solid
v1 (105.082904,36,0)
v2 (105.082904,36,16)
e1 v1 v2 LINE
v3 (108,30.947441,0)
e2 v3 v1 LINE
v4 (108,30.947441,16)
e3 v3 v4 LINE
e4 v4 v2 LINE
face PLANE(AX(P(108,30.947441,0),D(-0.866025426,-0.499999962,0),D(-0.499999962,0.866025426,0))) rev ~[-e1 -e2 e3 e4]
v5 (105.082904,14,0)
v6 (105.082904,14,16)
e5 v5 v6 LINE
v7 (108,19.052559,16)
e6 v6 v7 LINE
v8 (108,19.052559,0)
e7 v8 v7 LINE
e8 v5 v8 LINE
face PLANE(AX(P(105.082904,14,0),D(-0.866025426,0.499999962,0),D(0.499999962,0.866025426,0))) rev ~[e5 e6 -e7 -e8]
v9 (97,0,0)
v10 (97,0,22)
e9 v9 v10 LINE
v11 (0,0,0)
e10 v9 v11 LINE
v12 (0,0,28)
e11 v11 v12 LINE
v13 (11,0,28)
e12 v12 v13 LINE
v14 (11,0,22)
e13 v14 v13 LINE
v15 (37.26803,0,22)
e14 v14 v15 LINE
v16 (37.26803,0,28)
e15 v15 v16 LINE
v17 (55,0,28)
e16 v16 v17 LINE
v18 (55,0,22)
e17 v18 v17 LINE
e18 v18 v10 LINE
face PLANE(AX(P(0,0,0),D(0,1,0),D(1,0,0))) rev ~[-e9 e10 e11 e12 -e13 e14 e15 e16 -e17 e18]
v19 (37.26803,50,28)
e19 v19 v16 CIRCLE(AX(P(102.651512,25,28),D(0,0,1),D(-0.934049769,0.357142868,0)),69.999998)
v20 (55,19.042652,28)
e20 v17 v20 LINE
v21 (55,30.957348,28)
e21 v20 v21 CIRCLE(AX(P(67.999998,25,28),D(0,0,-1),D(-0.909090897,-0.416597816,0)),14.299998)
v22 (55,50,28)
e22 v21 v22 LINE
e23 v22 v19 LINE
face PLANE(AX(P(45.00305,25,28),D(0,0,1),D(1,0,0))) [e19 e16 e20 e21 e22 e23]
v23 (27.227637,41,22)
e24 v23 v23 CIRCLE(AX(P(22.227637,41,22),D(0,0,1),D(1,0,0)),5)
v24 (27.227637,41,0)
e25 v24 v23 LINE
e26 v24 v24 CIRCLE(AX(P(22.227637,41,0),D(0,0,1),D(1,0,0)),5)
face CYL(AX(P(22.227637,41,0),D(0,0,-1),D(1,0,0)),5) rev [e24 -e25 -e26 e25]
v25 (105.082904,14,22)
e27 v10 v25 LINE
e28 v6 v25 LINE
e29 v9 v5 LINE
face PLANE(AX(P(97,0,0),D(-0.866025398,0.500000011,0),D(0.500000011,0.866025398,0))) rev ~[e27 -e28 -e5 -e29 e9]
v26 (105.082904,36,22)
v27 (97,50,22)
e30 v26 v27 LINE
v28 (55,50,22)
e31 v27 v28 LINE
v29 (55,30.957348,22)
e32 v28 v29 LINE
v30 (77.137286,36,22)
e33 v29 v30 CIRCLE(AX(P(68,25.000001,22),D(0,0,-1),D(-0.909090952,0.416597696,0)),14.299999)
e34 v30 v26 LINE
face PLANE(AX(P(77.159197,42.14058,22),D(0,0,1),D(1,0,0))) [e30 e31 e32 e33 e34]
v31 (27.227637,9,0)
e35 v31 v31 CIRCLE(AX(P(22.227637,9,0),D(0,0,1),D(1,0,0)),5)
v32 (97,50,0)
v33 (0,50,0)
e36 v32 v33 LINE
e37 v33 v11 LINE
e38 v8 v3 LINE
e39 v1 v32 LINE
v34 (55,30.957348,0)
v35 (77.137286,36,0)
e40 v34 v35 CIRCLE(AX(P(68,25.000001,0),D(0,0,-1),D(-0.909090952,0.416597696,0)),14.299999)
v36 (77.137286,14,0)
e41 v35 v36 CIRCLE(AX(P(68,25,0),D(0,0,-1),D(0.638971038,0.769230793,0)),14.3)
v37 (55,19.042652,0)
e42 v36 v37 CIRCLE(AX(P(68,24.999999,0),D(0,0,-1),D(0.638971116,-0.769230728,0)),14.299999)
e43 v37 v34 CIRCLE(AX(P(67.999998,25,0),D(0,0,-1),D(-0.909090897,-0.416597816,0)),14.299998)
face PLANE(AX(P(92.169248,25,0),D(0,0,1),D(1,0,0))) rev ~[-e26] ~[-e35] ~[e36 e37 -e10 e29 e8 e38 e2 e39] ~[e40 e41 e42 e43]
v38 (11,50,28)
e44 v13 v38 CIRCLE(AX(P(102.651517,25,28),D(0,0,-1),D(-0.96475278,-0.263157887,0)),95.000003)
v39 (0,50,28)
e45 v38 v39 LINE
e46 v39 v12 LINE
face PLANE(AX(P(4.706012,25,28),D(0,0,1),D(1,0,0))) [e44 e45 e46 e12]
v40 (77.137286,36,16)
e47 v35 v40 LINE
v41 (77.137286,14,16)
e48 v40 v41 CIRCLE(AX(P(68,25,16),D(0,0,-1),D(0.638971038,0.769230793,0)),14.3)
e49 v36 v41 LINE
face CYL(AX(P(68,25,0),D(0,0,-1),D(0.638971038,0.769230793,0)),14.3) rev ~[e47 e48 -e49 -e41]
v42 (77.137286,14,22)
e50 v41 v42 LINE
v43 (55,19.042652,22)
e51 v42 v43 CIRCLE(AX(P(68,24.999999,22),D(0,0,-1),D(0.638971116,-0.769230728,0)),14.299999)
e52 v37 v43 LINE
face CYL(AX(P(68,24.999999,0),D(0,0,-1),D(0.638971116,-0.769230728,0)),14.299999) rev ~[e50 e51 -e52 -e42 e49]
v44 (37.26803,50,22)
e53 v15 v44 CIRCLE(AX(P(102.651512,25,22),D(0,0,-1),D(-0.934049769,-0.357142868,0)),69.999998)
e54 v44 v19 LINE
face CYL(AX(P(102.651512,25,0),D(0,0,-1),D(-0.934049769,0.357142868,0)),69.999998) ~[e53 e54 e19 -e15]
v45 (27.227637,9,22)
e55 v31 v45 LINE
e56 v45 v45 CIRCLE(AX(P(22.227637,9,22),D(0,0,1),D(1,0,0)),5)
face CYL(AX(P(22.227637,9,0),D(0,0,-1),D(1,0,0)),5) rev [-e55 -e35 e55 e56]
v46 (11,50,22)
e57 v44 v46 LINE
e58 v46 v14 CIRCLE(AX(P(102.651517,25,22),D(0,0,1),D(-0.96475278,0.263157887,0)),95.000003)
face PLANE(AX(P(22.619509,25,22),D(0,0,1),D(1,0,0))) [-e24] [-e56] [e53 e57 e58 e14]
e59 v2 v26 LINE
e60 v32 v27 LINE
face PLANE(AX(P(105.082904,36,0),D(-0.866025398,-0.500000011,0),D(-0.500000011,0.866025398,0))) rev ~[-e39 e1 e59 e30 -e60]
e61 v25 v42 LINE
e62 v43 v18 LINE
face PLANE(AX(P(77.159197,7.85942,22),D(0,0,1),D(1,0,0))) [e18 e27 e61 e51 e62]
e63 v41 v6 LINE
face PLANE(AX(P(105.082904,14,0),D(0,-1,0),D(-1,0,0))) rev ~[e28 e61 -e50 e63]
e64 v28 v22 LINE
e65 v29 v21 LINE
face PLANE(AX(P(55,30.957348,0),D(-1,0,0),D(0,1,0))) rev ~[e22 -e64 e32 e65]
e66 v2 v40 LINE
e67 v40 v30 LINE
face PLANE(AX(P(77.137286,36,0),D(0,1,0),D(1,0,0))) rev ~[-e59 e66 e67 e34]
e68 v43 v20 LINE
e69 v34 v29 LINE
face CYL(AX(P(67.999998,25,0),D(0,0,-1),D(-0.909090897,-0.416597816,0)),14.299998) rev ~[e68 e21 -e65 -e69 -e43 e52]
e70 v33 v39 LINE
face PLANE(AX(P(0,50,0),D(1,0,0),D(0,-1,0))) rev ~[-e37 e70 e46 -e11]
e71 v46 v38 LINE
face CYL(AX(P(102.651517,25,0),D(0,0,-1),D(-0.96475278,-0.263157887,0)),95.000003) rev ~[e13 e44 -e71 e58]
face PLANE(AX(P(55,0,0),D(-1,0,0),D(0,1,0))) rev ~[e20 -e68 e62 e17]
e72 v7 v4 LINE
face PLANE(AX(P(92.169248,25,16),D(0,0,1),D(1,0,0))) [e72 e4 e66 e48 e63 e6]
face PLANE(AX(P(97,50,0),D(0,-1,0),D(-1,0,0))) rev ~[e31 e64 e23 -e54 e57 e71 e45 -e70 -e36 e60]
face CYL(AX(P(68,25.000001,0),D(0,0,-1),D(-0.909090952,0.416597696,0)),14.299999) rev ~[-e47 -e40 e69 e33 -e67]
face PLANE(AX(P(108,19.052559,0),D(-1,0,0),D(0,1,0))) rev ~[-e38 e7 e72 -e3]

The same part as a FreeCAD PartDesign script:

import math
import FreeCAD as App
import Part
import Sketcher
from FreeCAD import Vector
Q = App.Units.Quantity

doc = App.newDocument("Part")
body = doc.addObject("PartDesign::Body", "Body")

sketch1 = doc.addObject("Sketcher::SketchObject", "Sketch")
body.addObject(sketch1)
sketch1.AttachmentSupport = (doc.XY_Plane, [""])
sketch1.MapMode = "FlatFace"
sketch1.addGeometry([
    Part.ArcOfCircle(Part.Circle(Vector(103, 25, 0), Vector(0, 0, 1), 95), math.radians(165), math.radians(195)),
    Part.LineSegment(Vector(11, 0, 0), Vector(37, 0, 0)),
    Part.ArcOfCircle(Part.Circle(Vector(103, 25, 0), Vector(0, 0, 1), 70), math.radians(159), math.radians(201)),
    Part.LineSegment(Vector(37, 50, 0), Vector(11, 50, 0)),
    Part.Circle(Vector(22, 9, 0), Vector(0, 0, 1), 5),
    Part.Circle(Vector(22, 41, 0), Vector(0, 0, 1), 5),
], False)
sketch1.addConstraint([
    Sketcher.Constraint("Coincident", 0, 2, 1, 1),
    Sketcher.Constraint("Coincident", 1, 2, 2, 2),
    Sketcher.Constraint("Coincident", 2, 1, 3, 1),
    Sketcher.Constraint("Coincident", 3, 2, 0, 1),
    Sketcher.Constraint("Horizontal", 1),
    Sketcher.Constraint("Horizontal", 3),
    Sketcher.Constraint("Coincident", 2, 3, 0, 3),
    Sketcher.Constraint("Equal", 4, 5),
    Sketcher.Constraint("PointOnObject", 0, 2, -1),
    Sketcher.Constraint("Vertical", 4, 3, 5, 3),
    Sketcher.Constraint("Vertical", 1, 2, 2, 1),
    Sketcher.Constraint("Diameter", 4, Q("10 mm")),
    Sketcher.Constraint("DistanceY", -1, 1, 0, 3, Q("25 mm")),
    Sketcher.Constraint("DistanceY", -1, 1, 4, 3, Q("9 mm")),
    Sketcher.Constraint("DistanceY", -1, 1, 5, 3, Q("41 mm")),
    Sketcher.Constraint("DistanceX", -1, 1, 0, 2, Q("11 mm")),
    Sketcher.Constraint("Radius", 0, Q("95.000003 mm")),
    Sketcher.Constraint("Radius", 2, Q("69.999998 mm")),
    Sketcher.Constraint("DistanceX", 4, 3, 0, 3, Q("80.42388 mm")),
])
pad1 = doc.addObject("PartDesign::Pad", "Pad")
body.addObject(pad1)
pad1.Profile = sketch1
pad1.Length = 22

sketch2 = doc.addObject("Sketcher::SketchObject", "Sketch001")
body.addObject(sketch2)
sketch2.AttachmentSupport = (doc.XY_Plane, [""])
sketch2.MapMode = "FlatFace"
sketch2.addGeometry([
    Part.LineSegment(Vector(0, 50, 0), Vector(0, 0, 0)),
    Part.LineSegment(Vector(0, 0, 0), Vector(11, 0, 0)),
    Part.ArcOfCircle(Part.Circle(Vector(103, 25, 0), Vector(0, 0, 1), 95), math.radians(165), math.radians(195)),
    Part.LineSegment(Vector(11, 50, 0), Vector(0, 50, 0)),
    Part.ArcOfCircle(Part.Circle(Vector(103, 25, 0), Vector(0, 0, 1), 70), math.radians(159), math.radians(201)),
    Part.LineSegment(Vector(37, 0, 0), Vector(55, 0, 0)),
    Part.LineSegment(Vector(55, 0, 0), Vector(55, 19, 0)),
    Part.ArcOfCircle(Part.Circle(Vector(68, 25, 0), Vector(0, 0, 1), 14), math.radians(155), math.radians(205)),
    Part.LineSegment(Vector(55, 31, 0), Vector(55, 50, 0)),
    Part.LineSegment(Vector(55, 50, 0), Vector(37, 50, 0)),
], False)
sketch2.addConstraint([
    Sketcher.Constraint("Coincident", 0, 2, 1, 1),
    Sketcher.Constraint("Coincident", 1, 2, 2, 2),
    Sketcher.Constraint("Coincident", 2, 1, 3, 1),
    Sketcher.Constraint("Coincident", 3, 2, 0, 1),
    Sketcher.Constraint("Coincident", 4, 2, 5, 1),
    Sketcher.Constraint("Coincident", 5, 2, 6, 1),
    Sketcher.Constraint("Coincident", 6, 2, 7, 2),
    Sketcher.Constraint("Coincident", 7, 1, 8, 1),
    Sketcher.Constraint("Coincident", 8, 2, 9, 1),
    Sketcher.Constraint("Coincident", 9, 2, 4, 1),
    Sketcher.Constraint("Vertical", 0),
    Sketcher.Constraint("Horizontal", 1),
    Sketcher.Constraint("Horizontal", 3),
    Sketcher.Constraint("Horizontal", 5),
    Sketcher.Constraint("Vertical", 6),
    Sketcher.Constraint("Vertical", 8),
    Sketcher.Constraint("Horizontal", 9),
    Sketcher.Constraint("Coincident", 0, 2, -1, 1),
    Sketcher.Constraint("Coincident", 4, 3, 2, 3),
    Sketcher.Constraint("PointOnObject", 4, 2, -1),
    Sketcher.Constraint("Horizontal", 4, 3, 7, 3),
    Sketcher.Constraint("Horizontal", 3, 2, 8, 2),
    Sketcher.Constraint("Vertical", 1, 2, 2, 1),
    Sketcher.Constraint("Vertical", 6, 2, 7, 1),
    Sketcher.Constraint("Radius", 7, Q("14.299998 mm")),
    Sketcher.Constraint("DistanceX", 1, 1, 1, 2, Q("11 mm")),
    Sketcher.Constraint("DistanceY", 0, 2, 0, 1, Q("50 mm")),
    Sketcher.Constraint("DistanceX", -1, 1, 7, 3, Q("67.999998 mm")),
    Sketcher.Constraint("DistanceX", -1, 1, 5, 2, Q("55 mm")),
    Sketcher.Constraint("Radius", 2, Q("95.000003 mm")),
    Sketcher.Constraint("Radius", 4, Q("69.999998 mm")),
])
pad2 = doc.addObject("PartDesign::Pad", "Pad001")
body.addObject(pad2)
pad2.Profile = sketch2
pad2.Length = 28

sketch3 = doc.addObject("Sketcher::SketchObject", "Sketch002")
body.addObject(sketch3)
sketch3.AttachmentSupport = (doc.XY_Plane, [""])
sketch3.MapMode = "FlatFace"
sketch3.addGeometry([
    Part.LineSegment(Vector(97, 50, 0), Vector(55, 50, 0)),
    Part.LineSegment(Vector(55, 50, 0), Vector(55, 31, 0)),
    Part.ArcOfCircle(Part.Circle(Vector(68, 25, 0), Vector(0, 0, 1), 14), math.radians(50), math.radians(155)),
    Part.LineSegment(Vector(77, 36, 0), Vector(105, 36, 0)),
    Part.LineSegment(Vector(105, 36, 0), Vector(97, 50, 0)),
    Part.LineSegment(Vector(55, 19, 0), Vector(55, 0, 0)),
    Part.LineSegment(Vector(55, 0, 0), Vector(97, 0, 0)),
    Part.LineSegment(Vector(97, 0, 0), Vector(105, 14, 0)),
    Part.LineSegment(Vector(105, 14, 0), Vector(77, 14, 0)),
    Part.ArcOfCircle(Part.Circle(Vector(68, 25, 0), Vector(0, 0, 1), 14), math.radians(-155), math.radians(-50)),
], False)
sketch3.addConstraint([
    Sketcher.Constraint("Coincident", 0, 2, 1, 1),
    Sketcher.Constraint("Coincident", 1, 2, 2, 2),
    Sketcher.Constraint("Coincident", 2, 1, 3, 1),
    Sketcher.Constraint("Coincident", 3, 2, 4, 1),
    Sketcher.Constraint("Coincident", 4, 2, 0, 1),
    Sketcher.Constraint("Coincident", 5, 2, 6, 1),
    Sketcher.Constraint("Coincident", 6, 2, 7, 1),
    Sketcher.Constraint("Coincident", 7, 2, 8, 1),
    Sketcher.Constraint("Coincident", 8, 2, 9, 2),
    Sketcher.Constraint("Coincident", 9, 1, 5, 1),
    Sketcher.Constraint("Horizontal", 0),
    Sketcher.Constraint("Vertical", 1),
    Sketcher.Constraint("Horizontal", 3),
    Sketcher.Constraint("Vertical", 5),
    Sketcher.Constraint("Horizontal", 6),
    Sketcher.Constraint("Horizontal", 8),
    Sketcher.Constraint("Coincident", 9, 3, 2, 3),
    Sketcher.Constraint("Equal", 2, 9),
    Sketcher.Constraint("PointOnObject", 5, 2, -1),
    Sketcher.Constraint("Vertical", 1, 2, 5, 2),
    Sketcher.Constraint("Vertical", 4, 2, 6, 2),
    Sketcher.Constraint("Vertical", 3, 2, 7, 2),
    Sketcher.Constraint("Vertical", 2, 1, 8, 2),
    Sketcher.Constraint("Equal", 1, 5),
    Sketcher.Constraint("Radius", 2, Q("14.299999 mm")),
    Sketcher.Constraint("DistanceX", 0, 2, 0, 1, Q("42 mm")),
    Sketcher.Constraint("Angle", 4, Q("120.000001 deg")),
    Sketcher.Constraint("DistanceX", -1, 1, 2, 3, Q("68 mm")),
    Sketcher.Constraint("DistanceY", -1, 1, 2, 3, Q("25.000001 mm")),
    Sketcher.Constraint("DistanceX", -1, 1, 0, 2, Q("55 mm")),
    Sketcher.Constraint("DistanceY", -1, 1, 2, 1, Q("36 mm")),
])
pad3 = doc.addObject("PartDesign::Pad", "Pad002")
body.addObject(pad3)
pad3.Profile = sketch3
pad3.Length = 22

sketch4 = doc.addObject("Sketcher::SketchObject", "Sketch003")
body.addObject(sketch4)
sketch4.AttachmentSupport = (doc.XY_Plane, [""])
sketch4.MapMode = "FlatFace"
sketch4.addGeometry([
    Part.ArcOfCircle(Part.Circle(Vector(68, 25, 0), Vector(0, 0, 1), 14), math.radians(-50), math.radians(50)),
    Part.LineSegment(Vector(77, 14, 0), Vector(105, 14, 0)),
    Part.LineSegment(Vector(105, 14, 0), Vector(108, 19, 0)),
    Part.LineSegment(Vector(108, 19, 0), Vector(108, 31, 0)),
    Part.LineSegment(Vector(108, 31, 0), Vector(105, 36, 0)),
    Part.LineSegment(Vector(105, 36, 0), Vector(77, 36, 0)),
], False)
sketch4.addConstraint([
    Sketcher.Constraint("Coincident", 0, 1, 1, 1),
    Sketcher.Constraint("Coincident", 1, 2, 2, 1),
    Sketcher.Constraint("Coincident", 2, 2, 3, 1),
    Sketcher.Constraint("Coincident", 3, 2, 4, 1),
    Sketcher.Constraint("Coincident", 4, 2, 5, 1),
    Sketcher.Constraint("Coincident", 5, 2, 0, 2),
    Sketcher.Constraint("Horizontal", 1),
    Sketcher.Constraint("Vertical", 3),
    Sketcher.Constraint("Horizontal", 5),
    Sketcher.Constraint("Vertical", 1, 2, 4, 2),
    Sketcher.Constraint("Vertical", 0, 1, 5, 2),
    Sketcher.Constraint("Equal", 2, 4),
    Sketcher.Constraint("Radius", 0, Q("14.3 mm")),
    Sketcher.Constraint("Angle", 2, Q("60.000003 deg")),
    Sketcher.Constraint("DistanceX", -1, 1, 0, 3, Q("68 mm")),
    Sketcher.Constraint("DistanceY", -1, 1, 0, 3, Q("25 mm")),
    Sketcher.Constraint("DistanceY", -1, 1, 0, 1, Q("14 mm")),
    Sketcher.Constraint("DistanceX", -1, 1, 2, 2, Q("108 mm")),
    Sketcher.Constraint("DistanceX", 1, 1, 1, 2, Q("27.945618 mm")),
])
pad4 = doc.addObject("PartDesign::Pad", "Pad003")
body.addObject(pad4)
pad4.Profile = sketch4
pad4.Length = 16

doc.recompute()
